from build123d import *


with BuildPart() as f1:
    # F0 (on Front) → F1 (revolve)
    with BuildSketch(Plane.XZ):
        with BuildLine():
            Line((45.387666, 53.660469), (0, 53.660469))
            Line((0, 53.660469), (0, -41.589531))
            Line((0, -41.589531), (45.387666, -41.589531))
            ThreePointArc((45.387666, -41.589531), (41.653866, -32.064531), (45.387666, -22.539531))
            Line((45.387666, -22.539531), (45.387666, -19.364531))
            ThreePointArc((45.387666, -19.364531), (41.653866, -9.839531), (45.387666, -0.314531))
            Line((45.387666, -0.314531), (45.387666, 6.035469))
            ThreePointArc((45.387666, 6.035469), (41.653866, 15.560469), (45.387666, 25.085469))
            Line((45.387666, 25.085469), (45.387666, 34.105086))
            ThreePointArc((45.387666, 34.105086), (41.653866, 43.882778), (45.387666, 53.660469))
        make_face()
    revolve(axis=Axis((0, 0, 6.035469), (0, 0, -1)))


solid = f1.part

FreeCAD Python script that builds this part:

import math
import FreeCAD as App
import Part
import Sketcher
Q = App.Units.Quantity

doc = App.newDocument("Part")
body = doc.addObject("PartDesign::Body", "Body")

# Sketch on XZ plane
sketch1 = body.newObject("Sketcher::SketchObject", "Sketch")
sketch1.AttachmentSupport = (doc.getObject("XZ_Plane"), [""])
sketch1.MapMode = "FlatFace"
sketch1.addGeometry(Part.LineSegment(App.Vector(45.4, 53.7, 0), App.Vector(0, 53.7, 0)), False)
sketch1.addGeometry(Part.LineSegment(App.Vector(0, 53.7, 0), App.Vector(0, -41.6, 0)), False)
sketch1.addGeometry(Part.LineSegment(App.Vector(0, -41.6, 0), App.Vector(45.4, -41.6, 0)), False)
sketch1.addGeometry(Part.ArcOfCircle(Part.Circle(App.Vector(55.7, -32.1, 0), App.Vector(0, 0, 1), 14), math.radians(137), math.radians(223)), False)
sketch1.addGeometry(Part.LineSegment(App.Vector(45.4, -22.5, 0), App.Vector(45.4, -19.4, 0)), False)
sketch1.addGeometry(Part.ArcOfCircle(Part.Circle(App.Vector(55.7, -9.8, 0), App.Vector(0, 0, 1), 14), math.radians(137), math.radians(223)), False)
sketch1.addGeometry(Part.LineSegment(App.Vector(45.4, -0.3, 0), App.Vector(45.4, 6, 0)), False)
sketch1.addGeometry(Part.ArcOfCircle(Part.Circle(App.Vector(55.7, 15.6, 0), App.Vector(0, 0, 1), 14), math.radians(137), math.radians(223)), False)
sketch1.addGeometry(Part.LineSegment(App.Vector(45.4, 25.1, 0), App.Vector(45.4, 34.1, 0)), False)
sketch1.addGeometry(Part.ArcOfCircle(Part.Circle(App.Vector(56.3, 43.9, 0), App.Vector(0, 0, 1), 14.7), math.radians(138), math.radians(222)), False)
sketch1.addConstraint(Sketcher.Constraint("Coincident", 0, 2, 1, 1))
sketch1.addConstraint(Sketcher.Constraint("Coincident", 1, 2, 2, 1))
sketch1.addConstraint(Sketcher.Constraint("Coincident", 2, 2, 3, 2))
sketch1.addConstraint(Sketcher.Constraint("Coincident", 3, 1, 4, 1))
sketch1.addConstraint(Sketcher.Constraint("Coincident", 4, 2, 5, 2))
sketch1.addConstraint(Sketcher.Constraint("Coincident", 5, 1, 6, 1))
sketch1.addConstraint(Sketcher.Constraint("Coincident", 6, 2, 7, 2))
sketch1.addConstraint(Sketcher.Constraint("Coincident", 7, 1, 8, 1))
sketch1.addConstraint(Sketcher.Constraint("Coincident", 8, 2, 9, 2))
sketch1.addConstraint(Sketcher.Constraint("Coincident", 9, 1, 0, 1))
sketch1.addConstraint(Sketcher.Constraint("Horizontal", 0))
sketch1.addConstraint(Sketcher.Constraint("Vertical", 1))
sketch1.addConstraint(Sketcher.Constraint("Horizontal", 2))
sketch1.addConstraint(Sketcher.Constraint("Vertical", 4))
sketch1.addConstraint(Sketcher.Constraint("Vertical", 6))
sketch1.addConstraint(Sketcher.Constraint("Vertical", 8))
sketch1.addConstraint(Sketcher.Constraint("Equal", 3, 5))
sketch1.addConstraint(Sketcher.Constraint("Equal", 5, 7))
sketch1.addConstraint(Sketcher.Constraint("PointOnObject", 0, 2, -2))
sketch1.addConstraint(Sketcher.Constraint("Vertical", 3, 3, 5, 3))
sketch1.addConstraint(Sketcher.Constraint("Vertical", 5, 3, 7, 3))
sketch1.addConstraint(Sketcher.Constraint("Vertical", 2, 2, 3, 1))
sketch1.addConstraint(Sketcher.Constraint("Vertical", 4, 2, 5, 1))
sketch1.addConstraint(Sketcher.Constraint("Vertical", 6, 2, 7, 1))
sketch1.addConstraint(Sketcher.Constraint("Vertical", 8, 2, 9, 1))
sketch1.addConstraint(Sketcher.Constraint("DistanceY", 5, 3, 7, 3, Q("1 in")))
sketch1.addConstraint(Sketcher.Constraint("DistanceY", 1, 2, 1, 1, Q("3.75 in")))
sketch1.addConstraint(Sketcher.Constraint("DistanceY", 6, 1, 6, 2, Q("0.25 in")))
sketch1.addConstraint(Sketcher.Constraint("DistanceY", 7, 3, 0, 2, Q("1.5 in")))
sketch1.addConstraint(Sketcher.Constraint("Radius", 3, 14.016135))
sketch1.addConstraint(Sketcher.Constraint("Radius", 9, 14.669307))
sketch1.addConstraint(Sketcher.Constraint("DistanceX", -1, 1, 3, 3, 55.670001))
sketch1.addConstraint(Sketcher.Constraint("DistanceY", 8, 1, 8, 2, 9.019617))
sketch1.addConstraint(Sketcher.Constraint("DistanceY", 3, 3, -1, 1, 32.064531))
revolution = body.newObject("PartDesign::Revolution", "Revolution")
revolution.Profile = sketch1
revolution.ReferenceAxis = (sketch1, ["V_Axis"])
revolution.Angle = 360

doc.recompute()
